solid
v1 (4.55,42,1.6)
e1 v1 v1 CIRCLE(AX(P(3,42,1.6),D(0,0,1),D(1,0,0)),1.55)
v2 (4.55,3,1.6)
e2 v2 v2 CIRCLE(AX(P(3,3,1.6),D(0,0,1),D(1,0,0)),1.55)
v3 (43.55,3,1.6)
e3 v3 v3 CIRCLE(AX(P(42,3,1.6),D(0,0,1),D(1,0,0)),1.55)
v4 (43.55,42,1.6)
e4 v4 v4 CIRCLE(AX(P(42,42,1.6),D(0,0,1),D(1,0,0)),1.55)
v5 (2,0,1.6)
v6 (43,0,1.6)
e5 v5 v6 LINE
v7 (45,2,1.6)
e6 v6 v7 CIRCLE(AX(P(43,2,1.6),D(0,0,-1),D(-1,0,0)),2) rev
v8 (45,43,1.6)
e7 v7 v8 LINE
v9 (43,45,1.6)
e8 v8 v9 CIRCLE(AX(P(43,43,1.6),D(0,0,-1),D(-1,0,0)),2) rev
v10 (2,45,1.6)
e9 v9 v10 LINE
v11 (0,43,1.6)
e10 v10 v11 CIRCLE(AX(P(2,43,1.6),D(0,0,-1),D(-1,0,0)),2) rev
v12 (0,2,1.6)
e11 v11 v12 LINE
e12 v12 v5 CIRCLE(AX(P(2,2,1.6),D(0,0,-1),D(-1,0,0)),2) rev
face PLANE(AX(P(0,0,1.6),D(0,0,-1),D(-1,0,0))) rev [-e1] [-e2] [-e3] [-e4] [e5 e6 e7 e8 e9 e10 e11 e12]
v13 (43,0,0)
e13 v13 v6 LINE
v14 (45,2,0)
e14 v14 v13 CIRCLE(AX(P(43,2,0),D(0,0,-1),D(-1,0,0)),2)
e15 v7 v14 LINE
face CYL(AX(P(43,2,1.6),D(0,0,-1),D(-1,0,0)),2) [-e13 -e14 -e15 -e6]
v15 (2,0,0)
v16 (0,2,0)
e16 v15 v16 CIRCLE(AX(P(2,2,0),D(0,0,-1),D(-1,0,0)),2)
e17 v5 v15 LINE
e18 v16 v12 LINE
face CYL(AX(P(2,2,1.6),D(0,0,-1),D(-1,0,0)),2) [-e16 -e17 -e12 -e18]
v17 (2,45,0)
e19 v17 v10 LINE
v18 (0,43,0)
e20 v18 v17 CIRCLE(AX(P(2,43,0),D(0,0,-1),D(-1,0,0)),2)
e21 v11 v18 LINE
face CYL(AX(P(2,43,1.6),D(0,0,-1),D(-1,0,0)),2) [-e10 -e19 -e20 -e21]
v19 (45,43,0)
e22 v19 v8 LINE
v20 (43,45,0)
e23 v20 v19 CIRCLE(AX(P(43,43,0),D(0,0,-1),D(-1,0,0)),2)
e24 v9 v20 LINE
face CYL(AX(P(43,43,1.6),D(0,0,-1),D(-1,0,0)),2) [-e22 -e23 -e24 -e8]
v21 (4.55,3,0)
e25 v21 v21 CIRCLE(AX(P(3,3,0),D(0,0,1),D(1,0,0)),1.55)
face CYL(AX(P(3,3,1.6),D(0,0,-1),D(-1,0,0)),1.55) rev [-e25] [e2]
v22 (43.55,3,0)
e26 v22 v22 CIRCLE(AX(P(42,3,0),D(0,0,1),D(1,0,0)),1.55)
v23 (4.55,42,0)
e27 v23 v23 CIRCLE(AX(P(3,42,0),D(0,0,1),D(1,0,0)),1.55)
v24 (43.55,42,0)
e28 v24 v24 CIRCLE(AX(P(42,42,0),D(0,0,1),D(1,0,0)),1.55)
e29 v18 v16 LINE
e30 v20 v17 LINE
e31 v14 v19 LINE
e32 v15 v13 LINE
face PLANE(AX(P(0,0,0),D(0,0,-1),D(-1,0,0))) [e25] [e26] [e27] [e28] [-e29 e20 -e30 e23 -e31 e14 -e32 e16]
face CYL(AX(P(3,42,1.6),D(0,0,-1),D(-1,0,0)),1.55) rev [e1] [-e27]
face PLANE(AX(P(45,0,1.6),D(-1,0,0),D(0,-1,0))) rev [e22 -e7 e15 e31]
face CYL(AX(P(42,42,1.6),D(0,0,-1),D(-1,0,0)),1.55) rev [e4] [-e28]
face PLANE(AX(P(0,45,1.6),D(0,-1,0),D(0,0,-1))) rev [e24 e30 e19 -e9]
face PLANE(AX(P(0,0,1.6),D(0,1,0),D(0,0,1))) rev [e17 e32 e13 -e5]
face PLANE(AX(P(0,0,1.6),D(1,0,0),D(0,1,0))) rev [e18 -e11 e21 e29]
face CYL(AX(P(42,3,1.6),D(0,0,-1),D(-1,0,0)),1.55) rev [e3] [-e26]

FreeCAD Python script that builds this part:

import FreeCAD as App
import Part
import Sketcher
Q = App.Units.Quantity


def edges_at(feature, points):
    """Names of the edges that pass closest to the given points."""
    edges = feature.Shape.Edges
    near = lambda p: min(range(len(edges)), key=lambda i: edges[i].distToShape(Part.Vertex(*p))[0])
    return sorted({f"Edge{near(p) + 1}" for p in points})

doc = App.newDocument("Part")
params = doc.addObject("Spreadsheet::Sheet", "Params")
for row, (alias, value) in enumerate([
    ("sketch1_diameter", "3.1 mm"),
    ("sketch1_width", "45 mm"),
    ("pad1_length", "1.6 mm"),
    ("fillet_radius", "2 mm"),
], start=1):
    params.set(f"A{row}", alias)
    params.set(f"B{row}", "=" + value)
    params.setAlias(f"B{row}", alias)

body = doc.addObject("PartDesign::Body", "Body")

sketch1 = body.newObject("Sketcher::SketchObject", "Sketch")
sketch1.AttachmentSupport = (doc.getObject("XY_Plane"), [""])
sketch1.MapMode = "FlatFace"
sketch1.addGeometry([
    Part.LineSegment(App.Vector(0, 45, 0), App.Vector(0, 0, 0)),
    Part.LineSegment(App.Vector(0, 0, 0), App.Vector(45, 0, 0)),
    Part.LineSegment(App.Vector(45, 0, 0), App.Vector(45, 45, 0)),
    Part.LineSegment(App.Vector(45, 45, 0), App.Vector(0, 45, 0)),
    Part.Circle(App.Vector(3, 3, 0), App.Vector(0, 0, 1), 1.6),
    Part.Circle(App.Vector(42, 3, 0), App.Vector(0, 0, 1), 1.6),
    Part.Circle(App.Vector(3, 42, 0), App.Vector(0, 0, 1), 1.6),
    Part.Circle(App.Vector(42, 42, 0), App.Vector(0, 0, 1), 1.6),
], False)
sketch1.addConstraint([
    Sketcher.Constraint("Coincident", 0, 2, 1, 1),
    Sketcher.Constraint("Coincident", 1, 2, 2, 1),
    Sketcher.Constraint("Coincident", 2, 2, 3, 1),
    Sketcher.Constraint("Coincident", 3, 2, 0, 1),
    Sketcher.Constraint("Vertical", 0),
    Sketcher.Constraint("Horizontal", 1),
    Sketcher.Constraint("Vertical", 2),
    Sketcher.Constraint("Horizontal", 3),
    Sketcher.Constraint("Coincident", 0, 2, -1, 1),
    Sketcher.Constraint("Equal", 4, 5),
    Sketcher.Constraint("Equal", 5, 6),
    Sketcher.Constraint("Equal", 6, 7),
    Sketcher.Constraint("Horizontal", 4, 3, 5, 3),
    Sketcher.Constraint("Horizontal", 6, 3, 7, 3),
    Sketcher.Constraint("Vertical", 4, 3, 6, 3),
    Sketcher.Constraint("Vertical", 5, 3, 7, 3),
    Sketcher.Constraint("Equal", 3, 0),
    Sketcher.Constraint("Diameter", 4, Q("3.1 mm")),
    Sketcher.Constraint("DistanceX", 1, 1, 1, 2, Q("45 mm")),
    Sketcher.Constraint("DistanceX", -1, 1, 4, 3, Q("3 mm")),
    Sketcher.Constraint("DistanceY", -1, 1, 4, 3, Q("3 mm")),
    Sketcher.Constraint("DistanceX", -1, 1, 5, 3, Q("42 mm")),
    Sketcher.Constraint("DistanceY", -1, 1, 6, 3, Q("42 mm")),
])
sketch1.setExpression("Constraints[17]", "Params.sketch1_diameter")
sketch1.setExpression("Constraints[18]", "Params.sketch1_width")
pad1 = body.newObject("PartDesign::Pad", "Pad")
pad1.Profile = sketch1
pad1.setExpression("Length", "Params.pad1_length")
doc.recompute()

fillet = body.newObject("PartDesign::Fillet", "Fillet")
fillet.Base = (pad1, edges_at(pad1, [
    (0, 45, 0.8),
    (45, 45, 0.8),
    (45, 0, 0.8),
    (0, 0, 0.8),
]))
fillet.setExpression("Radius", "Params.fillet_radius")

doc.recompute()
